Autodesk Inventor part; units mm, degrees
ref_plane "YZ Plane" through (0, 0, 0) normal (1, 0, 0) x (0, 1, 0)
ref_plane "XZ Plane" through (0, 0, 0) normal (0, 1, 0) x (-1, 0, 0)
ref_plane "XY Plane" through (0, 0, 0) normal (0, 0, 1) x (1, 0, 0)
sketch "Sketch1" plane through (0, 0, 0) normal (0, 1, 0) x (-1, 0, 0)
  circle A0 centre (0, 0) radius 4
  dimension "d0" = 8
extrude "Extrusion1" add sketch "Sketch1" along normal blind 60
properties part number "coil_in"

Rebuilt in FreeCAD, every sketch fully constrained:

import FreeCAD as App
import Part
import Sketcher

V = App.Vector
Q = App.Units.Quantity

doc = App.newDocument("Part")
body = doc.addObject("PartDesign::Body", "Body")

# Sketch on XZ plane
sketch1 = body.newObject("Sketcher::SketchObject", "Sketch")
sketch1.AttachmentSupport = (doc.getObject("XZ_Plane"), [""])
sketch1.MapMode = "FlatFace"
sketch1.addGeometry(Part.Circle(V(0, 0, 0), V(0, 0, 1), 4), False)
sketch1.addConstraint(Sketcher.Constraint("Coincident", 0, 3, -1, 1))
sketch1.addConstraint(Sketcher.Constraint("Diameter", 0, Q("8 mm")))
pad1 = body.newObject("PartDesign::Pad", "Pad")
pad1.Profile = sketch1
pad1.Length = 60
pad1.Reversed = True

doc.recompute()
